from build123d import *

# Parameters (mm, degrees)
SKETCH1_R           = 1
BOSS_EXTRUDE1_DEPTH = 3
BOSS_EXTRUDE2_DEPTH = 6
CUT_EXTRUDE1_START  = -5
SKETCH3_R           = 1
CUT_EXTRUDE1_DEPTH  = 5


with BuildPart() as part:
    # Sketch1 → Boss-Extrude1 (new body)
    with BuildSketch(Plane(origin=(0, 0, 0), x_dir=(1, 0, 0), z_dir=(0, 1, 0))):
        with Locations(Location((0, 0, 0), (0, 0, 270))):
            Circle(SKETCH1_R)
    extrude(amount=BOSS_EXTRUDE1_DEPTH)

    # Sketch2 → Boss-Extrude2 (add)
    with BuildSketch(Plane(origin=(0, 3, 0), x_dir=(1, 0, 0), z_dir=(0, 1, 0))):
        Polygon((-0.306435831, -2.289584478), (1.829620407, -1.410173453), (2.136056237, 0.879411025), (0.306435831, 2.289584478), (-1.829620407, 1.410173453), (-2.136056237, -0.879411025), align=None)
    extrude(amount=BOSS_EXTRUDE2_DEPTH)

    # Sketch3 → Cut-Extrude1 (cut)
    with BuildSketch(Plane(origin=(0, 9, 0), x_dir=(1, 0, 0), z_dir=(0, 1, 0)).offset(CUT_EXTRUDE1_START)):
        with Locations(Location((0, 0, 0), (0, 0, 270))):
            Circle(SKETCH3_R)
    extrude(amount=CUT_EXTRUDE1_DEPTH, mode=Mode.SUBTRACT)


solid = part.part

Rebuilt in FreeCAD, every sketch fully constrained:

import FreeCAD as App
import Part
import Sketcher
from FreeCAD import Vector


def add_polygon(sketch, points):
    """Adds a closed chain of lines whose ends are joined by coincident constraints."""
    first, n = sketch.GeometryCount, len(points)
    for a, b in zip(points, points[1:] + points[:1]):
        sketch.addGeometry(Part.LineSegment(App.Vector(*a, 0), App.Vector(*b, 0)), False)
    for i in range(n):
        sketch.addConstraint(Sketcher.Constraint("Coincident", first + i, 2, first + (i + 1) % n, 1))

doc = App.newDocument("Part")
body = doc.addObject("PartDesign::Body", "Body")

# Sketch on XZ plane
sketch1 = doc.addObject("Sketcher::SketchObject", "Sketch")
body.addObject(sketch1)
sketch1.AttachmentSupport = (doc.XZ_Plane, [""])
sketch1.MapMode = "FlatFace"
sketch1.addGeometry(Part.Circle(Vector(0, 0, 0), Vector(0, 0, 1), 1), False)
sketch1.addConstraint([
    Sketcher.Constraint("Coincident", 0, 3, -1, 1),
    Sketcher.Constraint("Diameter", 0, 2.0),
])
pad1 = doc.addObject("PartDesign::Pad", "Pad")
body.addObject(pad1)
pad1.Profile = sketch1
pad1.Length = 3
pad1.Reversed = True

# Sketch on XZ plane
sketch2 = doc.addObject("Sketcher::SketchObject", "Sketch001")
body.addObject(sketch2)
sketch2.AttachmentSupport = (doc.XZ_Plane, [""])
sketch2.MapMode = "FlatFace"
sketch2.AttachmentOffset = App.Placement(Vector(0, 0, -3), App.Rotation())
add_polygon(sketch2, [(-0.3, 2.3), (1.8, 1.4), (2.1, -0.9), (0.3, -2.3), (-1.8, -1.4), (-2.1, 0.9)])  # lines 0-5
sketch2.addConstraint([
    Sketcher.Constraint("Symmetric", 0, 2, 3, 2, -1, 1),
    Sketcher.Constraint("Symmetric", 1, 2, 4, 2, -1, 1),
    Sketcher.Constraint("Symmetric", 2, 2, 5, 2, -1, 1),
    Sketcher.Constraint("Equal", 0, 1),
    Sketcher.Constraint("Equal", 1, 2),
    Sketcher.Constraint("Distance", 0, 2.31),
    Sketcher.Constraint("DistanceX", -1, 1, 0, 2, 1.82962),
    Sketcher.Constraint("DistanceY", 1, 2, -1, 1, 0.879411),
    Sketcher.Constraint("DistanceX", 2, 2, 1, 2, 1.82962),
])
pad2 = doc.addObject("PartDesign::Pad", "Pad001")
body.addObject(pad2)
pad2.Profile = sketch2
pad2.Length = 6
pad2.Reversed = True

# Sketch on XZ plane
sketch3 = doc.addObject("Sketcher::SketchObject", "Sketch002")
body.addObject(sketch3)
sketch3.AttachmentSupport = (doc.XZ_Plane, [""])
sketch3.MapMode = "FlatFace"
sketch3.AttachmentOffset = App.Placement(Vector(0, 0, -4), App.Rotation())
sketch3.addGeometry(Part.Circle(Vector(0, 0, 0), Vector(0, 0, 1), 1), False)
sketch3.addConstraint([
    Sketcher.Constraint("Coincident", 0, 3, -1, 1),
    Sketcher.Constraint("Diameter", 0, 2.0),
])
pocket1 = doc.addObject("PartDesign::Pocket", "Pocket")
body.addObject(pocket1)
pocket1.Profile = sketch3
pocket1.Length = 5

doc.recompute()
